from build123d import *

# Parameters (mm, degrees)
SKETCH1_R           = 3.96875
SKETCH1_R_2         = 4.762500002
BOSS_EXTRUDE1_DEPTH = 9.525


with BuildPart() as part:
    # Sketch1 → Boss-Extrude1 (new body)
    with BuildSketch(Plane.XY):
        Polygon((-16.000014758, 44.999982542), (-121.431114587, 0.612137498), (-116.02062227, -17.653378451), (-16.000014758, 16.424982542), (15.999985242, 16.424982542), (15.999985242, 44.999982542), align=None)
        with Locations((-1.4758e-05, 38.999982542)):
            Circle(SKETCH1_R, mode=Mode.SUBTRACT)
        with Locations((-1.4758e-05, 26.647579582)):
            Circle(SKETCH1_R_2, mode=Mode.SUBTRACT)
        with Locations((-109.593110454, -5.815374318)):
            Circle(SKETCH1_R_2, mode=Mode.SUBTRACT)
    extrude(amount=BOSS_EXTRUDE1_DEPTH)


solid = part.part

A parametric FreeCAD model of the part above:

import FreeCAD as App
import Part
import Sketcher
Q = App.Units.Quantity


def add_polygon(sketch, points):
    """Adds a closed chain of lines whose ends are joined by coincident constraints."""
    first, n = sketch.GeometryCount, len(points)
    for a, b in zip(points, points[1:] + points[:1]):
        sketch.addGeometry(Part.LineSegment(App.Vector(*a, 0), App.Vector(*b, 0)), False)
    for i in range(n):
        sketch.addConstraint(Sketcher.Constraint("Coincident", first + i, 2, first + (i + 1) % n, 1))

doc = App.newDocument("Part")
params = doc.addObject("Spreadsheet::Sheet", "Params")
for row, (alias, value) in enumerate([
    ("sketch1_diameter", "0.375 in"),
    ("sketch1_diameter2", "0.3125 in"),
    ("sketch1_length", "0.75 in"),
    ("sketch1_height", "1.125 in"),
    ("pad1_length", "0.375 in"),
], start=1):
    params.set(f"A{row}", alias)
    params.set(f"B{row}", "=" + value)
    params.setAlias(f"B{row}", alias)

body = doc.addObject("PartDesign::Body", "Body")

# Sketch on XY plane
sketch1 = body.newObject("Sketcher::SketchObject", "Sketch")
sketch1.AttachmentSupport = (doc.getObject("XY_Plane"), [""])
sketch1.MapMode = "FlatFace"
add_polygon(sketch1, [(-16, 45), (-121.4, 0.6), (-116, -17.7), (-16, 16.4), (16, 16.4), (16, 45)])  # lines 0-5
sketch1.addGeometry(Part.Circle(App.Vector(-109.6, -5.8, 0), App.Vector(0, 0, 1), 4.8), False)  # 6
sketch1.addGeometry(Part.Circle(App.Vector(0, 26.6, 0), App.Vector(0, 0, 1), 4.8), False)  # 7
sketch1.addGeometry(Part.Circle(App.Vector(0, 39, 0), App.Vector(0, 0, 1), 4), False)  # 8
sketch1.addConstraint([
    Sketcher.Constraint("Horizontal", 3),
    Sketcher.Constraint("Vertical", 4),
    Sketcher.Constraint("Horizontal", 5),
    Sketcher.Constraint("Equal", 6, 7),
    Sketcher.Constraint("Vertical", 7, 3, 8, 3),
    Sketcher.Constraint("Vertical", 2, 2, 5, 2),
    Sketcher.Constraint("Diameter", 6, Q("0.375 in")),
    Sketcher.Constraint("Diameter", 8, Q("0.3125 in")),
    Sketcher.Constraint("Angle", 1, Q("-73.5 deg")),
    Sketcher.Constraint("Distance", 1, Q("0.75 in")),
    Sketcher.Constraint("DistanceY", 4, 1, 4, 2, Q("1.125 in")),
    Sketcher.Constraint("DistanceX", 3, 1, 3, 2, 32.0),
    Sketcher.Constraint("DistanceY", -1, 1, 0, 2, Q("0.0240999 in")),
    Sketcher.Constraint("DistanceX", 0, 2, 7, 3, 121.4311),
    Sketcher.Constraint("DistanceX", 2, 2, 7, 3, 16.0),
    Sketcher.Constraint("DistanceY", 2, 2, 8, 3, 22.575),
    Sketcher.Constraint("DistanceX", 6, 3, -1, 1, 109.59311),
    Sketcher.Constraint("DistanceY", -1, 1, 7, 3, 26.64758),
    Sketcher.Constraint("DistanceY", 6, 3, 0, 2, 6.427512),
    Sketcher.Constraint("DistanceX", 1, 2, 6, 3, 6.427512),
    Sketcher.Constraint("DistanceY", 1, 2, 8, 3, 56.653361),
])
sketch1.setExpression("Constraints[12]", "Params.sketch1_diameter")
sketch1.setExpression("Constraints[13]", "Params.sketch1_diameter2")
sketch1.setExpression("Constraints[15]", "Params.sketch1_length")
sketch1.setExpression("Constraints[16]", "Params.sketch1_height")
pad1 = body.newObject("PartDesign::Pad", "Pad")
pad1.Profile = sketch1
pad1.setExpression("Length", "Params.pad1_length")

doc.recompute()
